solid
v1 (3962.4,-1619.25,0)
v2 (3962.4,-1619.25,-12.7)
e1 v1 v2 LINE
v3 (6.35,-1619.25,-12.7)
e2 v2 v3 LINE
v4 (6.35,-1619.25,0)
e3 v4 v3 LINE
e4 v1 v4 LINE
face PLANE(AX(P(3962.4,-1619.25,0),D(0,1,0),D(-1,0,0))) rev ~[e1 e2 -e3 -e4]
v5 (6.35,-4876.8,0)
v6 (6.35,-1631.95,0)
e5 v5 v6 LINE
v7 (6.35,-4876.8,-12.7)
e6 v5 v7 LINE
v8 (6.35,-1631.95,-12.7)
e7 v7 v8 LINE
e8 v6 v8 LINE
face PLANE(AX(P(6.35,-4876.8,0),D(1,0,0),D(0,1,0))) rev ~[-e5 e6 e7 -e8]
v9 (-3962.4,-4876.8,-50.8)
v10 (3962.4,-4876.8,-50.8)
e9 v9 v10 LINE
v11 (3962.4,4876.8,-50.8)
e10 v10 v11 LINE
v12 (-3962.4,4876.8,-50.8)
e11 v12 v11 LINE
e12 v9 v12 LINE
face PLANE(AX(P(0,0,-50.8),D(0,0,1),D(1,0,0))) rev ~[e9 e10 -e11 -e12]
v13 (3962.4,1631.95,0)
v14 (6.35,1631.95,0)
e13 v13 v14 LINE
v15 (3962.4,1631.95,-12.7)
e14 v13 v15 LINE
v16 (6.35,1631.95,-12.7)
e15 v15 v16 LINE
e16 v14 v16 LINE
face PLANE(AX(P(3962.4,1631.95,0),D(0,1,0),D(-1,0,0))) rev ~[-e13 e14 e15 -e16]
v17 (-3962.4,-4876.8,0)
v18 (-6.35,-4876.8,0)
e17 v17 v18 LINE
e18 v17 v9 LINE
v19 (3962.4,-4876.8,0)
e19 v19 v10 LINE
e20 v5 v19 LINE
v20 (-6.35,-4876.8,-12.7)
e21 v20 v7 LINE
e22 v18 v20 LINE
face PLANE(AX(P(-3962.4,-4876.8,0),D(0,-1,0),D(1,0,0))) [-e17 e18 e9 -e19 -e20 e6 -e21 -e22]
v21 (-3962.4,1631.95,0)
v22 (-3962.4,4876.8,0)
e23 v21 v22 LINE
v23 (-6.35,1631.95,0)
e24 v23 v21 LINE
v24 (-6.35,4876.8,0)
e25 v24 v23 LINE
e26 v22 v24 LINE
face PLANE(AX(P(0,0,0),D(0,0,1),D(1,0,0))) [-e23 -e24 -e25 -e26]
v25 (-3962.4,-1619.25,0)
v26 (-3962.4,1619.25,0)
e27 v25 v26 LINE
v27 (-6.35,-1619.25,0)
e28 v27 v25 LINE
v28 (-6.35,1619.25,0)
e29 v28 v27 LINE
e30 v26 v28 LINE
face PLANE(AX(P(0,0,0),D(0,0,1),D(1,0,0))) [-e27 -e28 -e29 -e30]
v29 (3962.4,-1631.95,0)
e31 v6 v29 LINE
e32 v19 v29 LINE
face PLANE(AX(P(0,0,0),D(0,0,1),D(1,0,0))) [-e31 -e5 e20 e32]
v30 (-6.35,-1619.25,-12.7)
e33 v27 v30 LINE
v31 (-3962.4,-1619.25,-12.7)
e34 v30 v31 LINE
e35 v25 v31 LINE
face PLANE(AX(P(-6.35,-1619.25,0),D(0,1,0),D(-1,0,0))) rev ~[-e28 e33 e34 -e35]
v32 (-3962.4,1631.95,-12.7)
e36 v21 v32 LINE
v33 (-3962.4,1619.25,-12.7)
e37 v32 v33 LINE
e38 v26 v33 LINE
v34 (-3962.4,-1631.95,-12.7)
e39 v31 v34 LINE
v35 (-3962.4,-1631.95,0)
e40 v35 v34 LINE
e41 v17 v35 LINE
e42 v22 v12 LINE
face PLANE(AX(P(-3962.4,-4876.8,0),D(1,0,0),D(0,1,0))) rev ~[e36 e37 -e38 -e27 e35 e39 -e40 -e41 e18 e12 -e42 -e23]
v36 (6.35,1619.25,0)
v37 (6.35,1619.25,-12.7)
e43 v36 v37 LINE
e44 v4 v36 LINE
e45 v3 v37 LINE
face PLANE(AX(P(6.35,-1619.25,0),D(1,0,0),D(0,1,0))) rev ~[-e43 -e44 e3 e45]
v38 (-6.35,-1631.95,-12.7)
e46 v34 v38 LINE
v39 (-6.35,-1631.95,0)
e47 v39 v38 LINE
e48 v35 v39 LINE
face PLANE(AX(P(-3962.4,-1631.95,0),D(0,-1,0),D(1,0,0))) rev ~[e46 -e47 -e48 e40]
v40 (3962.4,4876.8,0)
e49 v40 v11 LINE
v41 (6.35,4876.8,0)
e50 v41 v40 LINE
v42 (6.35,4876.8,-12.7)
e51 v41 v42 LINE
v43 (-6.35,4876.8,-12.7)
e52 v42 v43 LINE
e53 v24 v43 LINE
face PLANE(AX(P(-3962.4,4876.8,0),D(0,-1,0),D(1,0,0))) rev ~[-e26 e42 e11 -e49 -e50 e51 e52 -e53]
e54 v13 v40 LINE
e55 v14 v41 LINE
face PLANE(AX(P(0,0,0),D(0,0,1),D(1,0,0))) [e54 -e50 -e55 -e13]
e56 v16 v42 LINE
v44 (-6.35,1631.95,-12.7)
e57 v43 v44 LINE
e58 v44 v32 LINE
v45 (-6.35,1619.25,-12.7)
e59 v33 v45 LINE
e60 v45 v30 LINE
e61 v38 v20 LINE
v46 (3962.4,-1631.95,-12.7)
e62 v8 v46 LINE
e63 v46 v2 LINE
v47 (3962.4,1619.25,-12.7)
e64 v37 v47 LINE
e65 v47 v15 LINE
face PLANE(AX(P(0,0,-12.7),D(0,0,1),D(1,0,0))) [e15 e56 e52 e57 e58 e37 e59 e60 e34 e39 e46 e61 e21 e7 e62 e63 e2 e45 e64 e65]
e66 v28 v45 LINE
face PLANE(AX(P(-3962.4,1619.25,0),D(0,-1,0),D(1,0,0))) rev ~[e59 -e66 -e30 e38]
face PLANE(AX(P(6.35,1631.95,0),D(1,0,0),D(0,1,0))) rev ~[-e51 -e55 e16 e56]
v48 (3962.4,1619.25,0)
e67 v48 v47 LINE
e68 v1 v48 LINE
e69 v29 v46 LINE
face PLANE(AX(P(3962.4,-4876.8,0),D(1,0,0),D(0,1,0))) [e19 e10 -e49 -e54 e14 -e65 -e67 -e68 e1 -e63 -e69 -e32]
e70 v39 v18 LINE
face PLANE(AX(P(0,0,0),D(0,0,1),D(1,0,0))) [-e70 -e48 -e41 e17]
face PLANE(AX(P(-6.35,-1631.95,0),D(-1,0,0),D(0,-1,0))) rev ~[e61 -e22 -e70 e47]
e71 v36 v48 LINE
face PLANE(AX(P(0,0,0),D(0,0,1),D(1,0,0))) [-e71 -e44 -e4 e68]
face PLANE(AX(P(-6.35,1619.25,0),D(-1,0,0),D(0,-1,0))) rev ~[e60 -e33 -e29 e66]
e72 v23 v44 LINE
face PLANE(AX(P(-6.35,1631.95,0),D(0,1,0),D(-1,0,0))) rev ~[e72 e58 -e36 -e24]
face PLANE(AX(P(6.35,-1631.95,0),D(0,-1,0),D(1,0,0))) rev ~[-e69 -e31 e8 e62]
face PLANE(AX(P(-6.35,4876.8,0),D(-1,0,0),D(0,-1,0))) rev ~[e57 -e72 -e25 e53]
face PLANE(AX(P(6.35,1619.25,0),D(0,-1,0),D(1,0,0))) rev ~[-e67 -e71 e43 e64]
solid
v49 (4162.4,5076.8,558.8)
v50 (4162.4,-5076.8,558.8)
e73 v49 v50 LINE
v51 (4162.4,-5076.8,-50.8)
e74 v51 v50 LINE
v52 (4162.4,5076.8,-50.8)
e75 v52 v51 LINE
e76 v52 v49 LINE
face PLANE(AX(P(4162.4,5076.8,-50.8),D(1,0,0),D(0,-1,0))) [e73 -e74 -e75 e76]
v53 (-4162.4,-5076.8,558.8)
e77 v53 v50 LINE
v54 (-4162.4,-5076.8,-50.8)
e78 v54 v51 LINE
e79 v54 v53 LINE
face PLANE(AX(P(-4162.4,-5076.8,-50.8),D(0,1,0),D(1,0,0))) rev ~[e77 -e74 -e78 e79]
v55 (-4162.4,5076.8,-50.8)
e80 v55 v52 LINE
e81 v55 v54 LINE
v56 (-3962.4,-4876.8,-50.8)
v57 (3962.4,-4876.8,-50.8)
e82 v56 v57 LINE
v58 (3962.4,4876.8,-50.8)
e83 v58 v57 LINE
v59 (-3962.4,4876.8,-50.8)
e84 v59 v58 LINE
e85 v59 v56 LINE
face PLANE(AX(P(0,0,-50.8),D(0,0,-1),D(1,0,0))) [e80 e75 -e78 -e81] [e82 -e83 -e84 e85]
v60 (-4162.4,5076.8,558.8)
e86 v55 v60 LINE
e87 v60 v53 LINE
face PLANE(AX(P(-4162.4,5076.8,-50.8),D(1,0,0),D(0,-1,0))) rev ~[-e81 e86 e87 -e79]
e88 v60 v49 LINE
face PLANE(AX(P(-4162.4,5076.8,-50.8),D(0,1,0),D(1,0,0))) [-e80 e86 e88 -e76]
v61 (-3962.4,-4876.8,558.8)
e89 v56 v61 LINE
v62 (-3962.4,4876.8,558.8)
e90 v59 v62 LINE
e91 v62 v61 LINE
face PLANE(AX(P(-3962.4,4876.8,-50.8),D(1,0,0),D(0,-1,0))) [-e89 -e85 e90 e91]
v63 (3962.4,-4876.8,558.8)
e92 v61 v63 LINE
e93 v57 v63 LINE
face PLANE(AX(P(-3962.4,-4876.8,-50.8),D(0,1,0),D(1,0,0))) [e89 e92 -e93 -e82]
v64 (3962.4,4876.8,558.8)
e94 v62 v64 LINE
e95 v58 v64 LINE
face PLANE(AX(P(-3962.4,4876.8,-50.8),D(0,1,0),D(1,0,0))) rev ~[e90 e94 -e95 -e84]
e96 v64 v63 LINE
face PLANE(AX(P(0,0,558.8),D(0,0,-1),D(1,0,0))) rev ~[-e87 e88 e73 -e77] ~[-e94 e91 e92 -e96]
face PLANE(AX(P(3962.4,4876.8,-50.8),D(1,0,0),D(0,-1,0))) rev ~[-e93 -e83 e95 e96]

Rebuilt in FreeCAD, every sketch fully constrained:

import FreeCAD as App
import Part
import Sketcher
Q = App.Units.Quantity


def add_polygon(sketch, points):
    """Adds a closed chain of lines whose ends are joined by coincident constraints."""
    first, n = sketch.GeometryCount, len(points)
    for a, b in zip(points, points[1:] + points[:1]):
        sketch.addGeometry(Part.LineSegment(App.Vector(*a, 0), App.Vector(*b, 0)), False)
    for i in range(n):
        sketch.addConstraint(Sketcher.Constraint("Coincident", first + i, 2, first + (i + 1) % n, 1))

doc = App.newDocument("Part")
body = doc.addObject("PartDesign::Body", "Body")

# Sketch on XY plane
sketch1 = doc.addObject("Sketcher::SketchObject", "Sketch")
body.addObject(sketch1)
sketch1.AttachmentSupport = (doc.XY_Plane, [""])
sketch1.MapMode = "FlatFace"
add_polygon(sketch1, [(-3962, 4877), (-3962, -4877), (3962, -4877), (3962, 4877)])  # lines 0-3
sketch1.addConstraint(Sketcher.Constraint("Vertical", 0))
sketch1.addConstraint(Sketcher.Constraint("Horizontal", 1))
sketch1.addConstraint(Sketcher.Constraint("Vertical", 2))
sketch1.addConstraint(Sketcher.Constraint("Horizontal", 3))
sketch1.addConstraint(Sketcher.Constraint("Symmetric", 0, 2, 2, 2, -1, 1))
sketch1.addConstraint(Sketcher.Constraint("DistanceX", 1, 1, 1, 2, Q("312 in")))
sketch1.addConstraint(Sketcher.Constraint("DistanceY", 0, 2, 0, 1, Q("384 in")))
pad1 = doc.addObject("PartDesign::Pad", "Pad")
body.addObject(pad1)
pad1.Profile = sketch1
pad1.Length = Q("2 in")
pad1.Reversed = True

# Sketch on XY plane
sketch2 = doc.addObject("Sketcher::SketchObject", "Sketch001")
body.addObject(sketch2)
sketch2.AttachmentSupport = (doc.XY_Plane, [""])
sketch2.MapMode = "FlatFace"
add_polygon(sketch2, [(-3962, -1619), (-3962, -1632), (-6, -1632), (-6, -4877), (6, -4877), (6, -1632), (3962, -1632), (3962, -1619), (6, -1619), (6, 1619), (3962, 1619), (3962, 1632), (6, 1632), (6, 4877), (-6, 4877), (-6, 1632), (-3962, 1632), (-3962, 1619), (-6, 1619), (-6, -1619)])  # lines 0-19
sketch2.addConstraint(Sketcher.Constraint("Vertical", 0))
sketch2.addConstraint(Sketcher.Constraint("Horizontal", 1))
sketch2.addConstraint(Sketcher.Constraint("Vertical", 2))
sketch2.addConstraint(Sketcher.Constraint("Horizontal", 3))
sketch2.addConstraint(Sketcher.Constraint("Vertical", 4))
sketch2.addConstraint(Sketcher.Constraint("Horizontal", 5))
sketch2.addConstraint(Sketcher.Constraint("Vertical", 6))
sketch2.addConstraint(Sketcher.Constraint("Horizontal", 7))
sketch2.addConstraint(Sketcher.Constraint("Vertical", 8))
sketch2.addConstraint(Sketcher.Constraint("Horizontal", 9))
sketch2.addConstraint(Sketcher.Constraint("Vertical", 10))
sketch2.addConstraint(Sketcher.Constraint("Horizontal", 11))
sketch2.addConstraint(Sketcher.Constraint("Vertical", 12))
sketch2.addConstraint(Sketcher.Constraint("Horizontal", 13))
sketch2.addConstraint(Sketcher.Constraint("Vertical", 14))
sketch2.addConstraint(Sketcher.Constraint("Horizontal", 15))
sketch2.addConstraint(Sketcher.Constraint("Vertical", 16))
sketch2.addConstraint(Sketcher.Constraint("Horizontal", 17))
sketch2.addConstraint(Sketcher.Constraint("Vertical", 18))
sketch2.addConstraint(Sketcher.Constraint("Horizontal", 19))
sketch2.addConstraint(Sketcher.Constraint("Symmetric", 0, 2, 10, 2, -1, 1))
sketch2.addConstraint(Sketcher.Constraint("Symmetric", 2, 2, 12, 2, -1, 1))
sketch2.addConstraint(Sketcher.Constraint("Symmetric", 4, 2, 14, 2, -1, 1))
sketch2.addConstraint(Sketcher.Constraint("Symmetric", 6, 2, 16, 2, -1, 1))
sketch2.addConstraint(Sketcher.Constraint("Symmetric", 8, 2, 18, 2, -1, 1))
sketch2.addConstraint(Sketcher.Constraint("Symmetric", 1, 2, 4, 2, -2))
sketch2.addConstraint(Sketcher.Constraint("Symmetric", 9, 2, 16, 2, -2))
sketch2.addConstraint(Sketcher.Constraint("Vertical", 4, 2, 7, 2))
sketch2.addConstraint(Sketcher.Constraint("Equal", 13, 0))
sketch2.addConstraint(Sketcher.Constraint("DistanceX", 3, 1, 3, 2, Q("0.5 in")))
sketch2.addConstraint(Sketcher.Constraint("DistanceY", 8, 1, 8, 2, Q("127.5 in")))
sketch2.addConstraint(Sketcher.Constraint("DistanceX", 0, 2, -1, 1, Q("156 in")))
sketch2.addConstraint(Sketcher.Constraint("DistanceY", 2, 2, -1, 1, Q("192 in")))
pocket1 = doc.addObject("PartDesign::Pocket", "Pocket")
body.addObject(pocket1)
pocket1.Profile = sketch2
pocket1.Length = Q("0.5 in")
body2 = doc.addObject("PartDesign::Body", "Body001")

# Sketch on XY plane
sketch3 = doc.addObject("Sketcher::SketchObject", "Sketch002")
body2.addObject(sketch3)
sketch3.AttachmentSupport = (doc.getObject("XY_Plane001"), [""])
sketch3.MapMode = "FlatFace"
sketch3.AttachmentOffset = App.Placement(App.Vector(0, 0, -2 * 25.4), App.Rotation())
add_polygon(sketch3, [(-4162, -5077), (-4162, 5077), (4162, 5077), (4162, -5077)])  # lines 0-3
add_polygon(sketch3, [(3962, 4877), (-3962, 4877), (-3962, -4877), (3962, -4877)])  # lines 4-7
sketch3.addConstraint(Sketcher.Constraint("Vertical", 0))
sketch3.addConstraint(Sketcher.Constraint("Horizontal", 1))
sketch3.addConstraint(Sketcher.Constraint("Vertical", 2))
sketch3.addConstraint(Sketcher.Constraint("Horizontal", 3))
sketch3.addConstraint(Sketcher.Constraint("Horizontal", 4))
sketch3.addConstraint(Sketcher.Constraint("Vertical", 5))
sketch3.addConstraint(Sketcher.Constraint("Horizontal", 6))
sketch3.addConstraint(Sketcher.Constraint("Vertical", 7))
sketch3.addConstraint(Sketcher.Constraint("Symmetric", 0, 2, 2, 2, -1, 1))
sketch3.addConstraint(Sketcher.Constraint("Symmetric", 4, 2, 6, 2, -1, 1))
sketch3.addConstraint(Sketcher.Constraint("DistanceX", 4, 2, 4, 1, Q("312 in")))
sketch3.addConstraint(Sketcher.Constraint("DistanceY", 5, 2, 5, 1, Q("384 in")))
sketch3.addConstraint(Sketcher.Constraint("DistanceX", 1, 1, 1, 2, Q("8324.8 mm")))
sketch3.addConstraint(Sketcher.Constraint("DistanceY", 0, 1, 0, 2, Q("10153.6 mm")))
pad2 = doc.addObject("PartDesign::Pad", "Pad001")
body2.addObject(pad2)
pad2.Profile = sketch3
pad2.Length = Q("24 in")

doc.recompute()
